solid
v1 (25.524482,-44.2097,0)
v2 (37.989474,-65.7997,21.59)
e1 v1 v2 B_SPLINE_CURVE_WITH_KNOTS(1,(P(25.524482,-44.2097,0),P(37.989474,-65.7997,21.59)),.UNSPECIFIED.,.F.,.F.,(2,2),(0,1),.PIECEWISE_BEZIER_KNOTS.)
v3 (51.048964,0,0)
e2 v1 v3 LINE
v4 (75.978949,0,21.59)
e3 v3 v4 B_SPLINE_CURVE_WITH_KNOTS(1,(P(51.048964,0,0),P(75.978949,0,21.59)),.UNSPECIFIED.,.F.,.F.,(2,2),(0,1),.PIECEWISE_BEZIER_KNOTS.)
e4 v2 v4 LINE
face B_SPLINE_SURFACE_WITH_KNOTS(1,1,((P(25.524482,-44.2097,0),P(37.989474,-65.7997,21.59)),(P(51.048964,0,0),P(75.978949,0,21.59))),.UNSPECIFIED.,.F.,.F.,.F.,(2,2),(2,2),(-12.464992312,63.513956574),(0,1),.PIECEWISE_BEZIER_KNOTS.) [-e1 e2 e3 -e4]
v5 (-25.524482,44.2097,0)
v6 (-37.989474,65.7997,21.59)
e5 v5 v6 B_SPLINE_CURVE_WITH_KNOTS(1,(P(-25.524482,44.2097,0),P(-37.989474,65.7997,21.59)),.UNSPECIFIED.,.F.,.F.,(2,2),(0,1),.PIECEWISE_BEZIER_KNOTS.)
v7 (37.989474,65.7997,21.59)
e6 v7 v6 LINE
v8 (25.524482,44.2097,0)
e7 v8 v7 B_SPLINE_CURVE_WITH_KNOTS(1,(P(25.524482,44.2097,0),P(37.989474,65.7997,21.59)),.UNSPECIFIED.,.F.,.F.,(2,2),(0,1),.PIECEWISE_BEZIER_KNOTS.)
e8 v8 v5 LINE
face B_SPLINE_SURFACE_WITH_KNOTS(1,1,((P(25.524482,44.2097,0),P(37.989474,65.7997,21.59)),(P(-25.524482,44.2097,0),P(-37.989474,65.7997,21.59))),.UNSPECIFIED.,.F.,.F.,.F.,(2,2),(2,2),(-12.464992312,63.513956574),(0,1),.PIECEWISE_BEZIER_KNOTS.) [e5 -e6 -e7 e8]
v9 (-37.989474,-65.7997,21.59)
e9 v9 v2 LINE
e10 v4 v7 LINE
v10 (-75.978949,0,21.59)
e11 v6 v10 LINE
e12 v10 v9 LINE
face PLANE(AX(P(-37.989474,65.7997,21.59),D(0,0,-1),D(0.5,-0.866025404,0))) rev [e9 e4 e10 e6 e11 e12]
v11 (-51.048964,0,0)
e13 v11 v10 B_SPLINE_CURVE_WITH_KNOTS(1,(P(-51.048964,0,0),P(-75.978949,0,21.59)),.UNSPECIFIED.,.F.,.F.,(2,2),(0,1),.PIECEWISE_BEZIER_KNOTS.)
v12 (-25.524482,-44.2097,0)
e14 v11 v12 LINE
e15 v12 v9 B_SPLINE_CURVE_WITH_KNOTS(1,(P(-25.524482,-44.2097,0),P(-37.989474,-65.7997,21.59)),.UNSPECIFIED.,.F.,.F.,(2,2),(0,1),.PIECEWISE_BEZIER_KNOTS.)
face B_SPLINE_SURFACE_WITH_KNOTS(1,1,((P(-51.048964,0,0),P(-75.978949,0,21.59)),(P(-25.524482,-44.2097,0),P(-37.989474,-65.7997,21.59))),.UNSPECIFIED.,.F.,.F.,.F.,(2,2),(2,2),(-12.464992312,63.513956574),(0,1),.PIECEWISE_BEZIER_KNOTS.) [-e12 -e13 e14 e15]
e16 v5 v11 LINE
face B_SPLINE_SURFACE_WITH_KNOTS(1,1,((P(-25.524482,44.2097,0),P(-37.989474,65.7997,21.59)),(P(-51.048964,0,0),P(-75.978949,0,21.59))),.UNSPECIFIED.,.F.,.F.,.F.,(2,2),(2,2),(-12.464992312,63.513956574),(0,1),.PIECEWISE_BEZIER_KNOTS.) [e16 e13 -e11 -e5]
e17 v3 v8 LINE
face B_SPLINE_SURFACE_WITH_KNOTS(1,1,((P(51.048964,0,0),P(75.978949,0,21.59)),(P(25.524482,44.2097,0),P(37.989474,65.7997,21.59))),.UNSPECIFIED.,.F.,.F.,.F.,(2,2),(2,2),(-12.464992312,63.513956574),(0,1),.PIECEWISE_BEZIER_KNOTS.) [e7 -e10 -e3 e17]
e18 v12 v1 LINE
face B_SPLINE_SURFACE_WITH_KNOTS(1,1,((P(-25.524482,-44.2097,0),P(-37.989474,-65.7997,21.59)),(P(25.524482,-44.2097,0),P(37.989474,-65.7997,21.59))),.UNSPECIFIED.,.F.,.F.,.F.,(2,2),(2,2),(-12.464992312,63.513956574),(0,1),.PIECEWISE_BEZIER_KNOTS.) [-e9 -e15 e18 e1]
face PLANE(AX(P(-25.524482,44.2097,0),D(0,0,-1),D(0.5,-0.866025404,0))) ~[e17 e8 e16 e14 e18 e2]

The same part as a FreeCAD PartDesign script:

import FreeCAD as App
import Part
import Sketcher
Q = App.Units.Quantity

doc = App.newDocument("Part")
body = doc.addObject("PartDesign::Body", "Body")

# Sketch on XY plane
sketch1 = doc.addObject("Sketcher::SketchObject", "Sketch")
body.addObject(sketch1)
sketch1.AttachmentSupport = (doc.XY_Plane, [""])
sketch1.MapMode = "FlatFace"
sketch1.addGeometry(Part.LineSegment(App.Vector(-26, 44, 0), App.Vector(-51, 0, 0)), False)
sketch1.addGeometry(Part.LineSegment(App.Vector(-51, 0, 0), App.Vector(-26, -44, 0)), False)
sketch1.addGeometry(Part.LineSegment(App.Vector(-26, -44, 0), App.Vector(26, -44, 0)), False)
sketch1.addGeometry(Part.LineSegment(App.Vector(26, -44, 0), App.Vector(51, 0, 0)), False)
sketch1.addGeometry(Part.LineSegment(App.Vector(51, 0, 0), App.Vector(26, 44, 0)), False)
sketch1.addGeometry(Part.LineSegment(App.Vector(26, 44, 0), App.Vector(-26, 44, 0)), False)
sketch1.addConstraint(Sketcher.Constraint("Coincident", 0, 2, 1, 1))
sketch1.addConstraint(Sketcher.Constraint("Coincident", 1, 2, 2, 1))
sketch1.addConstraint(Sketcher.Constraint("Coincident", 2, 2, 3, 1))
sketch1.addConstraint(Sketcher.Constraint("Coincident", 3, 2, 4, 1))
sketch1.addConstraint(Sketcher.Constraint("Coincident", 4, 2, 5, 1))
sketch1.addConstraint(Sketcher.Constraint("Coincident", 5, 2, 0, 1))
sketch1.addConstraint(Sketcher.Constraint("Horizontal", 2))
sketch1.addConstraint(Sketcher.Constraint("Horizontal", 5))
sketch1.addConstraint(Sketcher.Constraint("Symmetric", 0, 2, 3, 2, -1, 1))
sketch1.addConstraint(Sketcher.Constraint("Symmetric", 1, 2, 4, 2, -1, 1))
sketch1.addConstraint(Sketcher.Constraint("PointOnObject", 0, 2, -1))
sketch1.addConstraint(Sketcher.Constraint("Parallel", 0, 3))
sketch1.addConstraint(Sketcher.Constraint("Vertical", 2, 2, 4, 2))
sketch1.addConstraint(Sketcher.Constraint("Angle", 0, Q("-120 deg")))
sketch1.addConstraint(Sketcher.Constraint("DistanceY", 1, 2, -1, 1, 44.2097))
sketch1.addConstraint(Sketcher.Constraint("DistanceX", 2, 1, 2, 2, 51.048964))
pad1 = doc.addObject("PartDesign::Pad", "Pad")
body.addObject(pad1)
pad1.Profile = sketch1
pad1.Length = Q("0.85 in")
pad1.TaperAngle = 45

doc.recompute()
